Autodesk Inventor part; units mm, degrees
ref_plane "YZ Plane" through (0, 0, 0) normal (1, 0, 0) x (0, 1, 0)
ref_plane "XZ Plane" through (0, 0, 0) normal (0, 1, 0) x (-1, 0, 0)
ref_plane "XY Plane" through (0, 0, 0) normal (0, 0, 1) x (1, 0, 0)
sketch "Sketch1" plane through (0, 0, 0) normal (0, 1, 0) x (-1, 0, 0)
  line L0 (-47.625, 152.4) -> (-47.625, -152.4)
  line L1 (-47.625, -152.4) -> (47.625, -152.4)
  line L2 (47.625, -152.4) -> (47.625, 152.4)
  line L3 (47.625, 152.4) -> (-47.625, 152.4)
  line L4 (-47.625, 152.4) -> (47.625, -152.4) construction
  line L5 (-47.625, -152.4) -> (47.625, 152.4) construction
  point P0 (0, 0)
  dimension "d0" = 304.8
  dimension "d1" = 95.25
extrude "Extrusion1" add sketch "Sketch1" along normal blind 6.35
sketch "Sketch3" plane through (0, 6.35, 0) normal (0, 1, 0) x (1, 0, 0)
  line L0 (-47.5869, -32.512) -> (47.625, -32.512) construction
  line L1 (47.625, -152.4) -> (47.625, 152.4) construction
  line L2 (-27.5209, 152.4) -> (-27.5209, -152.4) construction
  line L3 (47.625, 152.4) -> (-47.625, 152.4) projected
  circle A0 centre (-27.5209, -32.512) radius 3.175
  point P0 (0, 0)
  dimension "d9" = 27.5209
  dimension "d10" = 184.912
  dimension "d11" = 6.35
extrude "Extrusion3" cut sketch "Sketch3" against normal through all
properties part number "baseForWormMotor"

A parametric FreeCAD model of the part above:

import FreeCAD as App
import Part
import Sketcher
Q = App.Units.Quantity


def add_polygon(sketch, points):
    """Adds a closed chain of lines whose ends are joined by coincident constraints."""
    first, n = sketch.GeometryCount, len(points)
    for a, b in zip(points, points[1:] + points[:1]):
        sketch.addGeometry(Part.LineSegment(App.Vector(*a, 0), App.Vector(*b, 0)), False)
    for i in range(n):
        sketch.addConstraint(Sketcher.Constraint("Coincident", first + i, 2, first + (i + 1) % n, 1))

doc = App.newDocument("Part")
body = doc.addObject("PartDesign::Body", "Body")

sketch1 = body.newObject("Sketcher::SketchObject", "Sketch")
sketch1.AttachmentSupport = (doc.getObject("XZ_Plane"), [""])
sketch1.MapMode = "FlatFace"
add_polygon(sketch1, [(-47.625, 152.4), (47.625, 152.4), (47.625, -152.4), (-47.625, -152.4)])
sketch1.addConstraint([
    Sketcher.Constraint("Horizontal", 0),
    Sketcher.Constraint("Vertical", 1),
    Sketcher.Constraint("Horizontal", 2),
    Sketcher.Constraint("Vertical", 3),
    Sketcher.Constraint("Symmetric", 0, 2, 2, 2, -1, 1),
    Sketcher.Constraint("DistanceY", 1, 2, 1, 1, Q("12 in")),
    Sketcher.Constraint("DistanceX", 0, 1, 0, 2, Q("3.75 in")),
])
pad1 = body.newObject("PartDesign::Pad", "Pad")
pad1.Profile = sketch1
pad1.Length = Q("0.25 in")
pad1.Reversed = True

sketch2 = body.newObject("Sketcher::SketchObject", "Sketch001")
sketch2.AttachmentSupport = (doc.getObject("XZ_Plane"), [""])
sketch2.MapMode = "FlatFace"
sketch2.AttachmentOffset = App.Placement(App.Vector(0, 0, -0.25 * 25.4), App.Rotation())
sketch2.addGeometry(Part.Circle(App.Vector(-27.5209, 32.512, 0), App.Vector(0, 0, 1), 3.175), False)
sketch2.addConstraint([
    Sketcher.Constraint("Diameter", 0, Q("0.25 in")),
    Sketcher.Constraint("DistanceX", 0, 3, -1, 1, Q("1.0835 in")),
    Sketcher.Constraint("DistanceY", -1, 1, 0, 3, Q("1.28 in")),
])
pocket1 = body.newObject("PartDesign::Pocket", "Pocket")
pocket1.Profile = sketch2
pocket1.Type = "ThroughAll"
pocket1.Reversed = True

doc.recompute()
